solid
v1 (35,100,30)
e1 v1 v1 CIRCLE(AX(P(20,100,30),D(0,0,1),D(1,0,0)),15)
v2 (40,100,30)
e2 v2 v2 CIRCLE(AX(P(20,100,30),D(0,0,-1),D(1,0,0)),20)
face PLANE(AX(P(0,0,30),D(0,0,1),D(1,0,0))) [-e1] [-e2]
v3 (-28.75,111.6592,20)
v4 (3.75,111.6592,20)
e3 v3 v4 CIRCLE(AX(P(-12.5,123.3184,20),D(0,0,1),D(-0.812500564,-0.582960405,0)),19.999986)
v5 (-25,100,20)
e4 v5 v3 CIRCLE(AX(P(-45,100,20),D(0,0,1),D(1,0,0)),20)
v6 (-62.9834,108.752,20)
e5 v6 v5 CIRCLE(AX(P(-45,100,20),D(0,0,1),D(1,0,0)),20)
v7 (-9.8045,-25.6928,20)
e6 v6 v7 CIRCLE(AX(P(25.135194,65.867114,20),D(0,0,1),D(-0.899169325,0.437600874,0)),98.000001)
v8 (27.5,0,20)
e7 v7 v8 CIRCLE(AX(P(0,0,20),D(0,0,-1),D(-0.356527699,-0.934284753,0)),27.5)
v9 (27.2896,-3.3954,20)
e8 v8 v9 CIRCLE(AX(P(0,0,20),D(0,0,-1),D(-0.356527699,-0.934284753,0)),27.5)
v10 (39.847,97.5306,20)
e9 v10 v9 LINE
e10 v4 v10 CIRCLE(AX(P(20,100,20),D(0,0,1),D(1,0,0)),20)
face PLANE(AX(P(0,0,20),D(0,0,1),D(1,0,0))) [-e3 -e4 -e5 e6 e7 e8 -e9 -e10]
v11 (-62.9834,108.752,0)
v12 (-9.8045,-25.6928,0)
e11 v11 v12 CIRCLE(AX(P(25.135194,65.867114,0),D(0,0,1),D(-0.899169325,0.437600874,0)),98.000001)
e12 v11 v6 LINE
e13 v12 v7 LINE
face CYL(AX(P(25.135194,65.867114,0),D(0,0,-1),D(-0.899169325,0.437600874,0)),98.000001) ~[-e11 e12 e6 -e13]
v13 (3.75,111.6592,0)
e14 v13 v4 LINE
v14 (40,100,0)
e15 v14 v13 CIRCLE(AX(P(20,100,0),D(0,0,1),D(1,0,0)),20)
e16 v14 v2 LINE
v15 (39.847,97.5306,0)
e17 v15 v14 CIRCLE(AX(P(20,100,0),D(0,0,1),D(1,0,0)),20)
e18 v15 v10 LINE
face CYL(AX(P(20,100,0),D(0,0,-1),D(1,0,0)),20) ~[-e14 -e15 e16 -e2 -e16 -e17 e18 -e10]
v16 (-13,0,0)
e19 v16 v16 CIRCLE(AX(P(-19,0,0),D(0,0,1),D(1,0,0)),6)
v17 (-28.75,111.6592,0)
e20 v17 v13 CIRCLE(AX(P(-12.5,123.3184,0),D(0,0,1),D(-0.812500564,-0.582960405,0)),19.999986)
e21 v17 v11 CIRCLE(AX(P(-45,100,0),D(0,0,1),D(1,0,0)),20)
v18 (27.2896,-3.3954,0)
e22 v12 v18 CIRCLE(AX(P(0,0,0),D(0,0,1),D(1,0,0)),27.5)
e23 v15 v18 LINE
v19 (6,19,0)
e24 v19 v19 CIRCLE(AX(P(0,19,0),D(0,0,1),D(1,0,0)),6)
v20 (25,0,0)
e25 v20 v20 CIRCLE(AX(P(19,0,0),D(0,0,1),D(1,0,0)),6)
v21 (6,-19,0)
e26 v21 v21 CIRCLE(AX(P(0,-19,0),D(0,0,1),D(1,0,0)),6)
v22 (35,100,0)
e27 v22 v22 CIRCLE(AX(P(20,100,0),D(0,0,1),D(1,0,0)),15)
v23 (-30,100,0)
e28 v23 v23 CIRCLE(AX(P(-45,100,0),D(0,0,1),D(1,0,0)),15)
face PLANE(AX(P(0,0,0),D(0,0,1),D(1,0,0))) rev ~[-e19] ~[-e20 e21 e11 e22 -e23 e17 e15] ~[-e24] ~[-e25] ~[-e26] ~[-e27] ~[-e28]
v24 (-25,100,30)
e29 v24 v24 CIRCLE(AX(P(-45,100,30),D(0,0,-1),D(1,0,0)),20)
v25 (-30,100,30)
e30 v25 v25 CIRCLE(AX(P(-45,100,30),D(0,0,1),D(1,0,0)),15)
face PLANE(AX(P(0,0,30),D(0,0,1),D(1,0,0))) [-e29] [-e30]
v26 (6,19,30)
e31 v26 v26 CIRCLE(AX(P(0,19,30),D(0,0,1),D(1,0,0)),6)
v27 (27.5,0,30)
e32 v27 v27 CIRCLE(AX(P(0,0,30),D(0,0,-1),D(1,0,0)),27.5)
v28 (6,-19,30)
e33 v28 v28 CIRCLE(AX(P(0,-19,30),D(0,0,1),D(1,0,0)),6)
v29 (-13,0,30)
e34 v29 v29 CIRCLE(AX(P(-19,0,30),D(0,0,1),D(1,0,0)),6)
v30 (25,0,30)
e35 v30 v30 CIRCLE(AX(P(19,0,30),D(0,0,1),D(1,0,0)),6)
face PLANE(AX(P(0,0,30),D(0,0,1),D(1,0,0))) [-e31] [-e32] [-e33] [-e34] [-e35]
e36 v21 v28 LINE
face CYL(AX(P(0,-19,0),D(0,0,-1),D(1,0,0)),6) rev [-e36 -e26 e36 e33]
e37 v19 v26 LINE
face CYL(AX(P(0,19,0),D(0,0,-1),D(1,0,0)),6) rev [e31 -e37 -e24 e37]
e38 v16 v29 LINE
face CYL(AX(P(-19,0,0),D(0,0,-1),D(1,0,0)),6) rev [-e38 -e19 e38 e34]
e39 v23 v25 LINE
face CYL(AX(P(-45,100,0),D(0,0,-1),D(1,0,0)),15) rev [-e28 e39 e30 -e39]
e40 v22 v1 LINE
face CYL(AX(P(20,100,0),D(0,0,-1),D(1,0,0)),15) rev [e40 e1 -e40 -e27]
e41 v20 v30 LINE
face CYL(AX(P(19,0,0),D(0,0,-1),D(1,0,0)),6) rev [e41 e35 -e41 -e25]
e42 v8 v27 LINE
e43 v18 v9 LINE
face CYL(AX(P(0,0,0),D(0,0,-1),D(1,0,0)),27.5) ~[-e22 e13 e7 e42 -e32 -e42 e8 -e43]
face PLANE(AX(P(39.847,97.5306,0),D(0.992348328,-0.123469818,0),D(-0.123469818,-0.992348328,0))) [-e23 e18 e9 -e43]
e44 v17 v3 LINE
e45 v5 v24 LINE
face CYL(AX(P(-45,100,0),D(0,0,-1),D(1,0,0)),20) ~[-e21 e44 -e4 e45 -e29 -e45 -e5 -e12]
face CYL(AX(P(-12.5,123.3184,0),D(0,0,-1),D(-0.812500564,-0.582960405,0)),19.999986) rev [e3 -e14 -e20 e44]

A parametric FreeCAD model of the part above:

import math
import FreeCAD as App
import Part
import Sketcher
from FreeCAD import Vector
Q = App.Units.Quantity

doc = App.newDocument("Part")
body = doc.addObject("PartDesign::Body", "Body")
body.AllowCompound = True

# Sketch on XY plane
sketch1 = body.newObject("Sketcher::SketchObject", "Sketch")
sketch1.AttachmentSupport = (doc.getObject("XY_Plane"), [""])
sketch1.MapMode = "FlatFace"
sketch1.addGeometry(Part.Circle(Vector(-45, 100, 0), Vector(0, 0, 1), 20), False)
sketch1.addGeometry(Part.Circle(Vector(-45, 100, 0), Vector(0, 0, 1), 15), False)
sketch1.addGeometry(Part.Circle(Vector(20, 100, 0), Vector(0, 0, 1), 20), False)
sketch1.addGeometry(Part.Circle(Vector(20, 100, 0), Vector(0, 0, 1), 15), False)
sketch1.addConstraint(Sketcher.Constraint("Coincident", 1, 3, 0, 3))
sketch1.addConstraint(Sketcher.Constraint("Coincident", 3, 3, 2, 3))
sketch1.addConstraint(Sketcher.Constraint("Equal", 0, 2))
sketch1.addConstraint(Sketcher.Constraint("Equal", 1, 3))
sketch1.addConstraint(Sketcher.Constraint("Horizontal", 1, 3, 2, 3))
sketch1.addConstraint(Sketcher.Constraint("Diameter", 0, Q("40 mm")))
sketch1.addConstraint(Sketcher.Constraint("Diameter", 1, Q("30 mm")))
sketch1.addConstraint(Sketcher.Constraint("DistanceX", 0, 3, 2, 3, Q("65 mm")))
sketch1.addConstraint(Sketcher.Constraint("DistanceX", 0, 3, -1, 1, Q("45 mm")))
sketch1.addConstraint(Sketcher.Constraint("DistanceY", -1, 1, 0, 3, Q("100 mm")))
pad1 = body.newObject("PartDesign::Pad", "Pad")
pad1.Profile = sketch1
pad1.Length = 30

# Sketch on XY plane
sketch2 = body.newObject("Sketcher::SketchObject", "Sketch001")
sketch2.AttachmentSupport = (doc.getObject("XY_Plane"), [""])
sketch2.MapMode = "FlatFace"
sketch2.addGeometry(Part.ArcOfCircle(Part.Circle(Vector(0, 0, 0), Vector(0, 0, 1), 28), math.radians(-7), math.radians(249)), False)
sketch2.addGeometry(Part.LineSegment(Vector(27, -3, 0), Vector(40, 98, 0)), False)
sketch2.addGeometry(Part.ArcOfCircle(Part.Circle(Vector(20, 100, 0), Vector(0, 0, 1), 20), math.radians(144), math.radians(353)), False)
sketch2.addGeometry(Part.ArcOfCircle(Part.Circle(Vector(-12, 123, 0), Vector(0, 0, 1), 20), math.radians(-144), math.radians(-36)), False)
sketch2.addGeometry(Part.ArcOfCircle(Part.Circle(Vector(-45, 100, 0), Vector(0, 0, 1), 20), math.radians(154), math.radians(396)), False)
sketch2.addGeometry(Part.ArcOfCircle(Part.Circle(Vector(25, 66, 0), Vector(0, 0, 1), 98), math.radians(154), math.radians(249)), False)
sketch2.addConstraint(Sketcher.Constraint("Tangent", 0, 1, 1, 1))
sketch2.addConstraint(Sketcher.Constraint("Tangent", 1, 2, 2, 2))
sketch2.addConstraint(Sketcher.Constraint("Tangent", 2, 1, 3, 2))
sketch2.addConstraint(Sketcher.Constraint("Tangent", 3, 1, 4, 2))
sketch2.addConstraint(Sketcher.Constraint("Tangent", 4, 1, 5, 1))
sketch2.addConstraint(Sketcher.Constraint("Tangent", 5, 2, 0, 2))
sketch2.addConstraint(Sketcher.Constraint("Coincident", 0, 3, -1, 1))
sketch2.addConstraint(Sketcher.Constraint("Equal", 2, 3))
sketch2.addConstraint(Sketcher.Constraint("Equal", 3, 4))
sketch2.addConstraint(Sketcher.Constraint("Horizontal", 2, 3, 4, 3))
sketch2.addConstraint(Sketcher.Constraint("Radius", 2, Q("20 mm")))
sketch2.addConstraint(Sketcher.Constraint("Radius", 5, Q("98 mm")))
sketch2.addConstraint(Sketcher.Constraint("Radius", 0, Q("27.5 mm")))
sketch2.addConstraint(Sketcher.Constraint("DistanceX", 4, 3, 2, 3, Q("65 mm")))
sketch2.addConstraint(Sketcher.Constraint("DistanceX", -1, 1, 2, 3, Q("20 mm")))
sketch2.addConstraint(Sketcher.Constraint("DistanceY", -1, 1, 2, 3, Q("100 mm")))
pad2 = body.newObject("PartDesign::Pad", "Pad001")
pad2.Profile = sketch2
pad2.Length = 20

# Sketch on XY plane
sketch3 = body.newObject("Sketcher::SketchObject", "Sketch002")
sketch3.AttachmentSupport = (doc.getObject("XY_Plane"), [""])
sketch3.MapMode = "FlatFace"
sketch3.addGeometry(Part.Circle(Vector(0, 0, 0), Vector(0, 0, 1), 28), False)
sketch3.addGeometry(Part.Circle(Vector(-19, 0, 0), Vector(0, 0, 1), 6), False)
sketch3.addGeometry(Part.Circle(Vector(0, -19, 0), Vector(0, 0, 1), 6), False)
sketch3.addGeometry(Part.Circle(Vector(19, 0, 0), Vector(0, 0, 1), 6), False)
sketch3.addGeometry(Part.Circle(Vector(0, 19, 0), Vector(0, 0, 1), 6), False)
sketch3.addConstraint(Sketcher.Constraint("Coincident", 0, 3, -1, 1))
sketch3.addConstraint(Sketcher.Constraint("Equal", 1, 2))
sketch3.addConstraint(Sketcher.Constraint("Equal", 2, 3))
sketch3.addConstraint(Sketcher.Constraint("Equal", 3, 4))
sketch3.addConstraint(Sketcher.Constraint("Symmetric", 1, 3, 3, 3, -1, 1))
sketch3.addConstraint(Sketcher.Constraint("Symmetric", 2, 3, 4, 3, -1, 1))
sketch3.addConstraint(Sketcher.Constraint("PointOnObject", 1, 3, -1))
sketch3.addConstraint(Sketcher.Constraint("PointOnObject", 2, 3, -2))
sketch3.addConstraint(Sketcher.Constraint("Diameter", 0, Q("55 mm")))
sketch3.addConstraint(Sketcher.Constraint("Diameter", 1, Q("12 mm")))
sketch3.addConstraint(Sketcher.Constraint("DistanceX", 1, 3, 3, 3, Q("38 mm")))
sketch3.addConstraint(Sketcher.Constraint("DistanceY", 2, 3, 4, 3, Q("38 mm")))
pad3 = body.newObject("PartDesign::Pad", "Pad002")
pad3.Profile = sketch3
pad3.Length = 30

doc.recompute()
